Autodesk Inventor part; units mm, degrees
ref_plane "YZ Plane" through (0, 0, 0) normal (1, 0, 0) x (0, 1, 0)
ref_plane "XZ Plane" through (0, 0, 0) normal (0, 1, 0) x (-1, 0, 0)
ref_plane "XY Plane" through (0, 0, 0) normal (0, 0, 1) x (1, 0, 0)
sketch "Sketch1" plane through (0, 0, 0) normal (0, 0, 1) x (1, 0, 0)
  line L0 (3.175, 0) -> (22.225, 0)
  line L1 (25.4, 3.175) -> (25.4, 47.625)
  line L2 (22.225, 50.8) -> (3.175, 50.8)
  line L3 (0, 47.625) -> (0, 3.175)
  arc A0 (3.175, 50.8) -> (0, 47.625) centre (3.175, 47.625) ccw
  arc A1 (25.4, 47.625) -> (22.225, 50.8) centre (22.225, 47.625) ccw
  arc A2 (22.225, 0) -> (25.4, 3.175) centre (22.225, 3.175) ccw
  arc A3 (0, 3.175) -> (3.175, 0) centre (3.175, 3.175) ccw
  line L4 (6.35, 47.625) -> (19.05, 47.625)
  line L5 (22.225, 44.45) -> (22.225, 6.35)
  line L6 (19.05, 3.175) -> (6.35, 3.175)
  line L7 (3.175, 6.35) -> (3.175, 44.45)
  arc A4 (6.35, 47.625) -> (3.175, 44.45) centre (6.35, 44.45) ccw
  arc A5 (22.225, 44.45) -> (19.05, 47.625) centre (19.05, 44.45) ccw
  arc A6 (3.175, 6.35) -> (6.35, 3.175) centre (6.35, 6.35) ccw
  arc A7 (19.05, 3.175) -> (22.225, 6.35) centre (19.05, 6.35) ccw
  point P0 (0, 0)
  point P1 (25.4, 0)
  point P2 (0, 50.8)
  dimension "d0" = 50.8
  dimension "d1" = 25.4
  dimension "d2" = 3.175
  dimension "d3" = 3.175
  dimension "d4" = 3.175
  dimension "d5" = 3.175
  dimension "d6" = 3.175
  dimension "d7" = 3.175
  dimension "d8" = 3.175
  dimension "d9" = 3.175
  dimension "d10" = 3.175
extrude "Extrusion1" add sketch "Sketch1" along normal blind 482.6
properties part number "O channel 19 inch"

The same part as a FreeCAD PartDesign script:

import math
import FreeCAD as App
import Part
import Sketcher
from FreeCAD import Vector
Q = App.Units.Quantity

doc = App.newDocument("Part")
body = doc.addObject("PartDesign::Body", "Body")

sketch1 = body.newObject("Sketcher::SketchObject", "Sketch")
sketch1.AttachmentSupport = (doc.getObject("XY_Plane"), [""])
sketch1.MapMode = "FlatFace"
sketch1.addGeometry([
    Part.ArcOfCircle(Part.Circle(Vector(3.2, 3.2, 0), Vector(0, 0, 1), 3.2), math.radians(180), math.radians(270)),
    Part.LineSegment(Vector(3.2, 0, 0), Vector(22.2, 0, 0)),
    Part.ArcOfCircle(Part.Circle(Vector(22.2, 3.2, 0), Vector(0, 0, 1), 3.2), math.radians(-90), math.radians(0)),
    Part.LineSegment(Vector(25.4, 3.2, 0), Vector(25.4, 47.6, 0)),
    Part.ArcOfCircle(Part.Circle(Vector(22.2, 47.6, 0), Vector(0, 0, 1), 3.2), math.radians(0), math.radians(90)),
    Part.LineSegment(Vector(22.2, 50.8, 0), Vector(3.2, 50.8, 0)),
    Part.ArcOfCircle(Part.Circle(Vector(3.2, 47.6, 0), Vector(0, 0, 1), 3.2), math.radians(90), math.radians(180)),
    Part.LineSegment(Vector(0, 47.6, 0), Vector(0, 3.2, 0)),
    Part.ArcOfCircle(Part.Circle(Vector(6.3, 44.5, 0), Vector(0, 0, 1), 3.2), math.radians(90), math.radians(180)),
    Part.LineSegment(Vector(6.3, 47.6, 0), Vector(19.1, 47.6, 0)),
    Part.ArcOfCircle(Part.Circle(Vector(19.1, 44.5, 0), Vector(0, 0, 1), 3.2), math.radians(0), math.radians(90)),
    Part.LineSegment(Vector(22.2, 44.5, 0), Vector(22.2, 6.3, 0)),
    Part.ArcOfCircle(Part.Circle(Vector(19.1, 6.3, 0), Vector(0, 0, 1), 3.2), math.radians(-90), math.radians(0)),
    Part.LineSegment(Vector(19.1, 3.2, 0), Vector(6.3, 3.2, 0)),
    Part.ArcOfCircle(Part.Circle(Vector(6.3, 6.3, 0), Vector(0, 0, 1), 3.2), math.radians(180), math.radians(270)),
    Part.LineSegment(Vector(3.2, 6.3, 0), Vector(3.2, 44.5, 0)),
], False)
sketch1.addConstraint([
    Sketcher.Constraint("Tangent", 0, 2, 1, 1),
    Sketcher.Constraint("Tangent", 1, 2, 2, 1),
    Sketcher.Constraint("Tangent", 2, 2, 3, 1),
    Sketcher.Constraint("Tangent", 3, 2, 4, 1),
    Sketcher.Constraint("Tangent", 4, 2, 5, 1),
    Sketcher.Constraint("Tangent", 5, 2, 6, 1),
    Sketcher.Constraint("Tangent", 6, 2, 7, 1),
    Sketcher.Constraint("Tangent", 7, 2, 0, 1),
    Sketcher.Constraint("Tangent", 8, 1, 9, 1),
    Sketcher.Constraint("Tangent", 9, 2, 10, 2),
    Sketcher.Constraint("Tangent", 10, 1, 11, 1),
    Sketcher.Constraint("Tangent", 11, 2, 12, 2),
    Sketcher.Constraint("Tangent", 12, 1, 13, 1),
    Sketcher.Constraint("Tangent", 13, 2, 14, 2),
    Sketcher.Constraint("Tangent", 14, 1, 15, 1),
    Sketcher.Constraint("Tangent", 15, 2, 8, 2),
    Sketcher.Constraint("Horizontal", 1),
    Sketcher.Constraint("Vertical", 3),
    Sketcher.Constraint("Horizontal", 5),
    Sketcher.Constraint("Vertical", 7),
    Sketcher.Constraint("Horizontal", 9),
    Sketcher.Constraint("Vertical", 11),
    Sketcher.Constraint("Horizontal", 13),
    Sketcher.Constraint("Vertical", 15),
    Sketcher.Constraint("Equal", 0, 2),
    Sketcher.Constraint("Equal", 2, 4),
    Sketcher.Constraint("Equal", 4, 6),
    Sketcher.Constraint("Equal", 6, 8),
    Sketcher.Constraint("Equal", 8, 10),
    Sketcher.Constraint("Equal", 10, 12),
    Sketcher.Constraint("Equal", 12, 14),
    Sketcher.Constraint("PointOnObject", 0, 2, -1),
    Sketcher.Constraint("PointOnObject", 6, 2, -2),
    Sketcher.Constraint("Horizontal", 6, 2, 8, 1),
    Sketcher.Constraint("Horizontal", 7, 2, 12, 1),
    Sketcher.Constraint("Vertical", 4, 2, 10, 1),
    Sketcher.Constraint("Vertical", 5, 2, 14, 1),
    Sketcher.Constraint("DistanceX", -1, 1, 2, 2, Q("1 in")),
    Sketcher.Constraint("DistanceY", -1, 1, 4, 2, Q("2 in")),
    Sketcher.Constraint("Radius", 0, Q("0.125 in")),
])
pad1 = body.newObject("PartDesign::Pad", "Pad")
pad1.Profile = sketch1
pad1.Length = Q("19 in")

doc.recompute()
